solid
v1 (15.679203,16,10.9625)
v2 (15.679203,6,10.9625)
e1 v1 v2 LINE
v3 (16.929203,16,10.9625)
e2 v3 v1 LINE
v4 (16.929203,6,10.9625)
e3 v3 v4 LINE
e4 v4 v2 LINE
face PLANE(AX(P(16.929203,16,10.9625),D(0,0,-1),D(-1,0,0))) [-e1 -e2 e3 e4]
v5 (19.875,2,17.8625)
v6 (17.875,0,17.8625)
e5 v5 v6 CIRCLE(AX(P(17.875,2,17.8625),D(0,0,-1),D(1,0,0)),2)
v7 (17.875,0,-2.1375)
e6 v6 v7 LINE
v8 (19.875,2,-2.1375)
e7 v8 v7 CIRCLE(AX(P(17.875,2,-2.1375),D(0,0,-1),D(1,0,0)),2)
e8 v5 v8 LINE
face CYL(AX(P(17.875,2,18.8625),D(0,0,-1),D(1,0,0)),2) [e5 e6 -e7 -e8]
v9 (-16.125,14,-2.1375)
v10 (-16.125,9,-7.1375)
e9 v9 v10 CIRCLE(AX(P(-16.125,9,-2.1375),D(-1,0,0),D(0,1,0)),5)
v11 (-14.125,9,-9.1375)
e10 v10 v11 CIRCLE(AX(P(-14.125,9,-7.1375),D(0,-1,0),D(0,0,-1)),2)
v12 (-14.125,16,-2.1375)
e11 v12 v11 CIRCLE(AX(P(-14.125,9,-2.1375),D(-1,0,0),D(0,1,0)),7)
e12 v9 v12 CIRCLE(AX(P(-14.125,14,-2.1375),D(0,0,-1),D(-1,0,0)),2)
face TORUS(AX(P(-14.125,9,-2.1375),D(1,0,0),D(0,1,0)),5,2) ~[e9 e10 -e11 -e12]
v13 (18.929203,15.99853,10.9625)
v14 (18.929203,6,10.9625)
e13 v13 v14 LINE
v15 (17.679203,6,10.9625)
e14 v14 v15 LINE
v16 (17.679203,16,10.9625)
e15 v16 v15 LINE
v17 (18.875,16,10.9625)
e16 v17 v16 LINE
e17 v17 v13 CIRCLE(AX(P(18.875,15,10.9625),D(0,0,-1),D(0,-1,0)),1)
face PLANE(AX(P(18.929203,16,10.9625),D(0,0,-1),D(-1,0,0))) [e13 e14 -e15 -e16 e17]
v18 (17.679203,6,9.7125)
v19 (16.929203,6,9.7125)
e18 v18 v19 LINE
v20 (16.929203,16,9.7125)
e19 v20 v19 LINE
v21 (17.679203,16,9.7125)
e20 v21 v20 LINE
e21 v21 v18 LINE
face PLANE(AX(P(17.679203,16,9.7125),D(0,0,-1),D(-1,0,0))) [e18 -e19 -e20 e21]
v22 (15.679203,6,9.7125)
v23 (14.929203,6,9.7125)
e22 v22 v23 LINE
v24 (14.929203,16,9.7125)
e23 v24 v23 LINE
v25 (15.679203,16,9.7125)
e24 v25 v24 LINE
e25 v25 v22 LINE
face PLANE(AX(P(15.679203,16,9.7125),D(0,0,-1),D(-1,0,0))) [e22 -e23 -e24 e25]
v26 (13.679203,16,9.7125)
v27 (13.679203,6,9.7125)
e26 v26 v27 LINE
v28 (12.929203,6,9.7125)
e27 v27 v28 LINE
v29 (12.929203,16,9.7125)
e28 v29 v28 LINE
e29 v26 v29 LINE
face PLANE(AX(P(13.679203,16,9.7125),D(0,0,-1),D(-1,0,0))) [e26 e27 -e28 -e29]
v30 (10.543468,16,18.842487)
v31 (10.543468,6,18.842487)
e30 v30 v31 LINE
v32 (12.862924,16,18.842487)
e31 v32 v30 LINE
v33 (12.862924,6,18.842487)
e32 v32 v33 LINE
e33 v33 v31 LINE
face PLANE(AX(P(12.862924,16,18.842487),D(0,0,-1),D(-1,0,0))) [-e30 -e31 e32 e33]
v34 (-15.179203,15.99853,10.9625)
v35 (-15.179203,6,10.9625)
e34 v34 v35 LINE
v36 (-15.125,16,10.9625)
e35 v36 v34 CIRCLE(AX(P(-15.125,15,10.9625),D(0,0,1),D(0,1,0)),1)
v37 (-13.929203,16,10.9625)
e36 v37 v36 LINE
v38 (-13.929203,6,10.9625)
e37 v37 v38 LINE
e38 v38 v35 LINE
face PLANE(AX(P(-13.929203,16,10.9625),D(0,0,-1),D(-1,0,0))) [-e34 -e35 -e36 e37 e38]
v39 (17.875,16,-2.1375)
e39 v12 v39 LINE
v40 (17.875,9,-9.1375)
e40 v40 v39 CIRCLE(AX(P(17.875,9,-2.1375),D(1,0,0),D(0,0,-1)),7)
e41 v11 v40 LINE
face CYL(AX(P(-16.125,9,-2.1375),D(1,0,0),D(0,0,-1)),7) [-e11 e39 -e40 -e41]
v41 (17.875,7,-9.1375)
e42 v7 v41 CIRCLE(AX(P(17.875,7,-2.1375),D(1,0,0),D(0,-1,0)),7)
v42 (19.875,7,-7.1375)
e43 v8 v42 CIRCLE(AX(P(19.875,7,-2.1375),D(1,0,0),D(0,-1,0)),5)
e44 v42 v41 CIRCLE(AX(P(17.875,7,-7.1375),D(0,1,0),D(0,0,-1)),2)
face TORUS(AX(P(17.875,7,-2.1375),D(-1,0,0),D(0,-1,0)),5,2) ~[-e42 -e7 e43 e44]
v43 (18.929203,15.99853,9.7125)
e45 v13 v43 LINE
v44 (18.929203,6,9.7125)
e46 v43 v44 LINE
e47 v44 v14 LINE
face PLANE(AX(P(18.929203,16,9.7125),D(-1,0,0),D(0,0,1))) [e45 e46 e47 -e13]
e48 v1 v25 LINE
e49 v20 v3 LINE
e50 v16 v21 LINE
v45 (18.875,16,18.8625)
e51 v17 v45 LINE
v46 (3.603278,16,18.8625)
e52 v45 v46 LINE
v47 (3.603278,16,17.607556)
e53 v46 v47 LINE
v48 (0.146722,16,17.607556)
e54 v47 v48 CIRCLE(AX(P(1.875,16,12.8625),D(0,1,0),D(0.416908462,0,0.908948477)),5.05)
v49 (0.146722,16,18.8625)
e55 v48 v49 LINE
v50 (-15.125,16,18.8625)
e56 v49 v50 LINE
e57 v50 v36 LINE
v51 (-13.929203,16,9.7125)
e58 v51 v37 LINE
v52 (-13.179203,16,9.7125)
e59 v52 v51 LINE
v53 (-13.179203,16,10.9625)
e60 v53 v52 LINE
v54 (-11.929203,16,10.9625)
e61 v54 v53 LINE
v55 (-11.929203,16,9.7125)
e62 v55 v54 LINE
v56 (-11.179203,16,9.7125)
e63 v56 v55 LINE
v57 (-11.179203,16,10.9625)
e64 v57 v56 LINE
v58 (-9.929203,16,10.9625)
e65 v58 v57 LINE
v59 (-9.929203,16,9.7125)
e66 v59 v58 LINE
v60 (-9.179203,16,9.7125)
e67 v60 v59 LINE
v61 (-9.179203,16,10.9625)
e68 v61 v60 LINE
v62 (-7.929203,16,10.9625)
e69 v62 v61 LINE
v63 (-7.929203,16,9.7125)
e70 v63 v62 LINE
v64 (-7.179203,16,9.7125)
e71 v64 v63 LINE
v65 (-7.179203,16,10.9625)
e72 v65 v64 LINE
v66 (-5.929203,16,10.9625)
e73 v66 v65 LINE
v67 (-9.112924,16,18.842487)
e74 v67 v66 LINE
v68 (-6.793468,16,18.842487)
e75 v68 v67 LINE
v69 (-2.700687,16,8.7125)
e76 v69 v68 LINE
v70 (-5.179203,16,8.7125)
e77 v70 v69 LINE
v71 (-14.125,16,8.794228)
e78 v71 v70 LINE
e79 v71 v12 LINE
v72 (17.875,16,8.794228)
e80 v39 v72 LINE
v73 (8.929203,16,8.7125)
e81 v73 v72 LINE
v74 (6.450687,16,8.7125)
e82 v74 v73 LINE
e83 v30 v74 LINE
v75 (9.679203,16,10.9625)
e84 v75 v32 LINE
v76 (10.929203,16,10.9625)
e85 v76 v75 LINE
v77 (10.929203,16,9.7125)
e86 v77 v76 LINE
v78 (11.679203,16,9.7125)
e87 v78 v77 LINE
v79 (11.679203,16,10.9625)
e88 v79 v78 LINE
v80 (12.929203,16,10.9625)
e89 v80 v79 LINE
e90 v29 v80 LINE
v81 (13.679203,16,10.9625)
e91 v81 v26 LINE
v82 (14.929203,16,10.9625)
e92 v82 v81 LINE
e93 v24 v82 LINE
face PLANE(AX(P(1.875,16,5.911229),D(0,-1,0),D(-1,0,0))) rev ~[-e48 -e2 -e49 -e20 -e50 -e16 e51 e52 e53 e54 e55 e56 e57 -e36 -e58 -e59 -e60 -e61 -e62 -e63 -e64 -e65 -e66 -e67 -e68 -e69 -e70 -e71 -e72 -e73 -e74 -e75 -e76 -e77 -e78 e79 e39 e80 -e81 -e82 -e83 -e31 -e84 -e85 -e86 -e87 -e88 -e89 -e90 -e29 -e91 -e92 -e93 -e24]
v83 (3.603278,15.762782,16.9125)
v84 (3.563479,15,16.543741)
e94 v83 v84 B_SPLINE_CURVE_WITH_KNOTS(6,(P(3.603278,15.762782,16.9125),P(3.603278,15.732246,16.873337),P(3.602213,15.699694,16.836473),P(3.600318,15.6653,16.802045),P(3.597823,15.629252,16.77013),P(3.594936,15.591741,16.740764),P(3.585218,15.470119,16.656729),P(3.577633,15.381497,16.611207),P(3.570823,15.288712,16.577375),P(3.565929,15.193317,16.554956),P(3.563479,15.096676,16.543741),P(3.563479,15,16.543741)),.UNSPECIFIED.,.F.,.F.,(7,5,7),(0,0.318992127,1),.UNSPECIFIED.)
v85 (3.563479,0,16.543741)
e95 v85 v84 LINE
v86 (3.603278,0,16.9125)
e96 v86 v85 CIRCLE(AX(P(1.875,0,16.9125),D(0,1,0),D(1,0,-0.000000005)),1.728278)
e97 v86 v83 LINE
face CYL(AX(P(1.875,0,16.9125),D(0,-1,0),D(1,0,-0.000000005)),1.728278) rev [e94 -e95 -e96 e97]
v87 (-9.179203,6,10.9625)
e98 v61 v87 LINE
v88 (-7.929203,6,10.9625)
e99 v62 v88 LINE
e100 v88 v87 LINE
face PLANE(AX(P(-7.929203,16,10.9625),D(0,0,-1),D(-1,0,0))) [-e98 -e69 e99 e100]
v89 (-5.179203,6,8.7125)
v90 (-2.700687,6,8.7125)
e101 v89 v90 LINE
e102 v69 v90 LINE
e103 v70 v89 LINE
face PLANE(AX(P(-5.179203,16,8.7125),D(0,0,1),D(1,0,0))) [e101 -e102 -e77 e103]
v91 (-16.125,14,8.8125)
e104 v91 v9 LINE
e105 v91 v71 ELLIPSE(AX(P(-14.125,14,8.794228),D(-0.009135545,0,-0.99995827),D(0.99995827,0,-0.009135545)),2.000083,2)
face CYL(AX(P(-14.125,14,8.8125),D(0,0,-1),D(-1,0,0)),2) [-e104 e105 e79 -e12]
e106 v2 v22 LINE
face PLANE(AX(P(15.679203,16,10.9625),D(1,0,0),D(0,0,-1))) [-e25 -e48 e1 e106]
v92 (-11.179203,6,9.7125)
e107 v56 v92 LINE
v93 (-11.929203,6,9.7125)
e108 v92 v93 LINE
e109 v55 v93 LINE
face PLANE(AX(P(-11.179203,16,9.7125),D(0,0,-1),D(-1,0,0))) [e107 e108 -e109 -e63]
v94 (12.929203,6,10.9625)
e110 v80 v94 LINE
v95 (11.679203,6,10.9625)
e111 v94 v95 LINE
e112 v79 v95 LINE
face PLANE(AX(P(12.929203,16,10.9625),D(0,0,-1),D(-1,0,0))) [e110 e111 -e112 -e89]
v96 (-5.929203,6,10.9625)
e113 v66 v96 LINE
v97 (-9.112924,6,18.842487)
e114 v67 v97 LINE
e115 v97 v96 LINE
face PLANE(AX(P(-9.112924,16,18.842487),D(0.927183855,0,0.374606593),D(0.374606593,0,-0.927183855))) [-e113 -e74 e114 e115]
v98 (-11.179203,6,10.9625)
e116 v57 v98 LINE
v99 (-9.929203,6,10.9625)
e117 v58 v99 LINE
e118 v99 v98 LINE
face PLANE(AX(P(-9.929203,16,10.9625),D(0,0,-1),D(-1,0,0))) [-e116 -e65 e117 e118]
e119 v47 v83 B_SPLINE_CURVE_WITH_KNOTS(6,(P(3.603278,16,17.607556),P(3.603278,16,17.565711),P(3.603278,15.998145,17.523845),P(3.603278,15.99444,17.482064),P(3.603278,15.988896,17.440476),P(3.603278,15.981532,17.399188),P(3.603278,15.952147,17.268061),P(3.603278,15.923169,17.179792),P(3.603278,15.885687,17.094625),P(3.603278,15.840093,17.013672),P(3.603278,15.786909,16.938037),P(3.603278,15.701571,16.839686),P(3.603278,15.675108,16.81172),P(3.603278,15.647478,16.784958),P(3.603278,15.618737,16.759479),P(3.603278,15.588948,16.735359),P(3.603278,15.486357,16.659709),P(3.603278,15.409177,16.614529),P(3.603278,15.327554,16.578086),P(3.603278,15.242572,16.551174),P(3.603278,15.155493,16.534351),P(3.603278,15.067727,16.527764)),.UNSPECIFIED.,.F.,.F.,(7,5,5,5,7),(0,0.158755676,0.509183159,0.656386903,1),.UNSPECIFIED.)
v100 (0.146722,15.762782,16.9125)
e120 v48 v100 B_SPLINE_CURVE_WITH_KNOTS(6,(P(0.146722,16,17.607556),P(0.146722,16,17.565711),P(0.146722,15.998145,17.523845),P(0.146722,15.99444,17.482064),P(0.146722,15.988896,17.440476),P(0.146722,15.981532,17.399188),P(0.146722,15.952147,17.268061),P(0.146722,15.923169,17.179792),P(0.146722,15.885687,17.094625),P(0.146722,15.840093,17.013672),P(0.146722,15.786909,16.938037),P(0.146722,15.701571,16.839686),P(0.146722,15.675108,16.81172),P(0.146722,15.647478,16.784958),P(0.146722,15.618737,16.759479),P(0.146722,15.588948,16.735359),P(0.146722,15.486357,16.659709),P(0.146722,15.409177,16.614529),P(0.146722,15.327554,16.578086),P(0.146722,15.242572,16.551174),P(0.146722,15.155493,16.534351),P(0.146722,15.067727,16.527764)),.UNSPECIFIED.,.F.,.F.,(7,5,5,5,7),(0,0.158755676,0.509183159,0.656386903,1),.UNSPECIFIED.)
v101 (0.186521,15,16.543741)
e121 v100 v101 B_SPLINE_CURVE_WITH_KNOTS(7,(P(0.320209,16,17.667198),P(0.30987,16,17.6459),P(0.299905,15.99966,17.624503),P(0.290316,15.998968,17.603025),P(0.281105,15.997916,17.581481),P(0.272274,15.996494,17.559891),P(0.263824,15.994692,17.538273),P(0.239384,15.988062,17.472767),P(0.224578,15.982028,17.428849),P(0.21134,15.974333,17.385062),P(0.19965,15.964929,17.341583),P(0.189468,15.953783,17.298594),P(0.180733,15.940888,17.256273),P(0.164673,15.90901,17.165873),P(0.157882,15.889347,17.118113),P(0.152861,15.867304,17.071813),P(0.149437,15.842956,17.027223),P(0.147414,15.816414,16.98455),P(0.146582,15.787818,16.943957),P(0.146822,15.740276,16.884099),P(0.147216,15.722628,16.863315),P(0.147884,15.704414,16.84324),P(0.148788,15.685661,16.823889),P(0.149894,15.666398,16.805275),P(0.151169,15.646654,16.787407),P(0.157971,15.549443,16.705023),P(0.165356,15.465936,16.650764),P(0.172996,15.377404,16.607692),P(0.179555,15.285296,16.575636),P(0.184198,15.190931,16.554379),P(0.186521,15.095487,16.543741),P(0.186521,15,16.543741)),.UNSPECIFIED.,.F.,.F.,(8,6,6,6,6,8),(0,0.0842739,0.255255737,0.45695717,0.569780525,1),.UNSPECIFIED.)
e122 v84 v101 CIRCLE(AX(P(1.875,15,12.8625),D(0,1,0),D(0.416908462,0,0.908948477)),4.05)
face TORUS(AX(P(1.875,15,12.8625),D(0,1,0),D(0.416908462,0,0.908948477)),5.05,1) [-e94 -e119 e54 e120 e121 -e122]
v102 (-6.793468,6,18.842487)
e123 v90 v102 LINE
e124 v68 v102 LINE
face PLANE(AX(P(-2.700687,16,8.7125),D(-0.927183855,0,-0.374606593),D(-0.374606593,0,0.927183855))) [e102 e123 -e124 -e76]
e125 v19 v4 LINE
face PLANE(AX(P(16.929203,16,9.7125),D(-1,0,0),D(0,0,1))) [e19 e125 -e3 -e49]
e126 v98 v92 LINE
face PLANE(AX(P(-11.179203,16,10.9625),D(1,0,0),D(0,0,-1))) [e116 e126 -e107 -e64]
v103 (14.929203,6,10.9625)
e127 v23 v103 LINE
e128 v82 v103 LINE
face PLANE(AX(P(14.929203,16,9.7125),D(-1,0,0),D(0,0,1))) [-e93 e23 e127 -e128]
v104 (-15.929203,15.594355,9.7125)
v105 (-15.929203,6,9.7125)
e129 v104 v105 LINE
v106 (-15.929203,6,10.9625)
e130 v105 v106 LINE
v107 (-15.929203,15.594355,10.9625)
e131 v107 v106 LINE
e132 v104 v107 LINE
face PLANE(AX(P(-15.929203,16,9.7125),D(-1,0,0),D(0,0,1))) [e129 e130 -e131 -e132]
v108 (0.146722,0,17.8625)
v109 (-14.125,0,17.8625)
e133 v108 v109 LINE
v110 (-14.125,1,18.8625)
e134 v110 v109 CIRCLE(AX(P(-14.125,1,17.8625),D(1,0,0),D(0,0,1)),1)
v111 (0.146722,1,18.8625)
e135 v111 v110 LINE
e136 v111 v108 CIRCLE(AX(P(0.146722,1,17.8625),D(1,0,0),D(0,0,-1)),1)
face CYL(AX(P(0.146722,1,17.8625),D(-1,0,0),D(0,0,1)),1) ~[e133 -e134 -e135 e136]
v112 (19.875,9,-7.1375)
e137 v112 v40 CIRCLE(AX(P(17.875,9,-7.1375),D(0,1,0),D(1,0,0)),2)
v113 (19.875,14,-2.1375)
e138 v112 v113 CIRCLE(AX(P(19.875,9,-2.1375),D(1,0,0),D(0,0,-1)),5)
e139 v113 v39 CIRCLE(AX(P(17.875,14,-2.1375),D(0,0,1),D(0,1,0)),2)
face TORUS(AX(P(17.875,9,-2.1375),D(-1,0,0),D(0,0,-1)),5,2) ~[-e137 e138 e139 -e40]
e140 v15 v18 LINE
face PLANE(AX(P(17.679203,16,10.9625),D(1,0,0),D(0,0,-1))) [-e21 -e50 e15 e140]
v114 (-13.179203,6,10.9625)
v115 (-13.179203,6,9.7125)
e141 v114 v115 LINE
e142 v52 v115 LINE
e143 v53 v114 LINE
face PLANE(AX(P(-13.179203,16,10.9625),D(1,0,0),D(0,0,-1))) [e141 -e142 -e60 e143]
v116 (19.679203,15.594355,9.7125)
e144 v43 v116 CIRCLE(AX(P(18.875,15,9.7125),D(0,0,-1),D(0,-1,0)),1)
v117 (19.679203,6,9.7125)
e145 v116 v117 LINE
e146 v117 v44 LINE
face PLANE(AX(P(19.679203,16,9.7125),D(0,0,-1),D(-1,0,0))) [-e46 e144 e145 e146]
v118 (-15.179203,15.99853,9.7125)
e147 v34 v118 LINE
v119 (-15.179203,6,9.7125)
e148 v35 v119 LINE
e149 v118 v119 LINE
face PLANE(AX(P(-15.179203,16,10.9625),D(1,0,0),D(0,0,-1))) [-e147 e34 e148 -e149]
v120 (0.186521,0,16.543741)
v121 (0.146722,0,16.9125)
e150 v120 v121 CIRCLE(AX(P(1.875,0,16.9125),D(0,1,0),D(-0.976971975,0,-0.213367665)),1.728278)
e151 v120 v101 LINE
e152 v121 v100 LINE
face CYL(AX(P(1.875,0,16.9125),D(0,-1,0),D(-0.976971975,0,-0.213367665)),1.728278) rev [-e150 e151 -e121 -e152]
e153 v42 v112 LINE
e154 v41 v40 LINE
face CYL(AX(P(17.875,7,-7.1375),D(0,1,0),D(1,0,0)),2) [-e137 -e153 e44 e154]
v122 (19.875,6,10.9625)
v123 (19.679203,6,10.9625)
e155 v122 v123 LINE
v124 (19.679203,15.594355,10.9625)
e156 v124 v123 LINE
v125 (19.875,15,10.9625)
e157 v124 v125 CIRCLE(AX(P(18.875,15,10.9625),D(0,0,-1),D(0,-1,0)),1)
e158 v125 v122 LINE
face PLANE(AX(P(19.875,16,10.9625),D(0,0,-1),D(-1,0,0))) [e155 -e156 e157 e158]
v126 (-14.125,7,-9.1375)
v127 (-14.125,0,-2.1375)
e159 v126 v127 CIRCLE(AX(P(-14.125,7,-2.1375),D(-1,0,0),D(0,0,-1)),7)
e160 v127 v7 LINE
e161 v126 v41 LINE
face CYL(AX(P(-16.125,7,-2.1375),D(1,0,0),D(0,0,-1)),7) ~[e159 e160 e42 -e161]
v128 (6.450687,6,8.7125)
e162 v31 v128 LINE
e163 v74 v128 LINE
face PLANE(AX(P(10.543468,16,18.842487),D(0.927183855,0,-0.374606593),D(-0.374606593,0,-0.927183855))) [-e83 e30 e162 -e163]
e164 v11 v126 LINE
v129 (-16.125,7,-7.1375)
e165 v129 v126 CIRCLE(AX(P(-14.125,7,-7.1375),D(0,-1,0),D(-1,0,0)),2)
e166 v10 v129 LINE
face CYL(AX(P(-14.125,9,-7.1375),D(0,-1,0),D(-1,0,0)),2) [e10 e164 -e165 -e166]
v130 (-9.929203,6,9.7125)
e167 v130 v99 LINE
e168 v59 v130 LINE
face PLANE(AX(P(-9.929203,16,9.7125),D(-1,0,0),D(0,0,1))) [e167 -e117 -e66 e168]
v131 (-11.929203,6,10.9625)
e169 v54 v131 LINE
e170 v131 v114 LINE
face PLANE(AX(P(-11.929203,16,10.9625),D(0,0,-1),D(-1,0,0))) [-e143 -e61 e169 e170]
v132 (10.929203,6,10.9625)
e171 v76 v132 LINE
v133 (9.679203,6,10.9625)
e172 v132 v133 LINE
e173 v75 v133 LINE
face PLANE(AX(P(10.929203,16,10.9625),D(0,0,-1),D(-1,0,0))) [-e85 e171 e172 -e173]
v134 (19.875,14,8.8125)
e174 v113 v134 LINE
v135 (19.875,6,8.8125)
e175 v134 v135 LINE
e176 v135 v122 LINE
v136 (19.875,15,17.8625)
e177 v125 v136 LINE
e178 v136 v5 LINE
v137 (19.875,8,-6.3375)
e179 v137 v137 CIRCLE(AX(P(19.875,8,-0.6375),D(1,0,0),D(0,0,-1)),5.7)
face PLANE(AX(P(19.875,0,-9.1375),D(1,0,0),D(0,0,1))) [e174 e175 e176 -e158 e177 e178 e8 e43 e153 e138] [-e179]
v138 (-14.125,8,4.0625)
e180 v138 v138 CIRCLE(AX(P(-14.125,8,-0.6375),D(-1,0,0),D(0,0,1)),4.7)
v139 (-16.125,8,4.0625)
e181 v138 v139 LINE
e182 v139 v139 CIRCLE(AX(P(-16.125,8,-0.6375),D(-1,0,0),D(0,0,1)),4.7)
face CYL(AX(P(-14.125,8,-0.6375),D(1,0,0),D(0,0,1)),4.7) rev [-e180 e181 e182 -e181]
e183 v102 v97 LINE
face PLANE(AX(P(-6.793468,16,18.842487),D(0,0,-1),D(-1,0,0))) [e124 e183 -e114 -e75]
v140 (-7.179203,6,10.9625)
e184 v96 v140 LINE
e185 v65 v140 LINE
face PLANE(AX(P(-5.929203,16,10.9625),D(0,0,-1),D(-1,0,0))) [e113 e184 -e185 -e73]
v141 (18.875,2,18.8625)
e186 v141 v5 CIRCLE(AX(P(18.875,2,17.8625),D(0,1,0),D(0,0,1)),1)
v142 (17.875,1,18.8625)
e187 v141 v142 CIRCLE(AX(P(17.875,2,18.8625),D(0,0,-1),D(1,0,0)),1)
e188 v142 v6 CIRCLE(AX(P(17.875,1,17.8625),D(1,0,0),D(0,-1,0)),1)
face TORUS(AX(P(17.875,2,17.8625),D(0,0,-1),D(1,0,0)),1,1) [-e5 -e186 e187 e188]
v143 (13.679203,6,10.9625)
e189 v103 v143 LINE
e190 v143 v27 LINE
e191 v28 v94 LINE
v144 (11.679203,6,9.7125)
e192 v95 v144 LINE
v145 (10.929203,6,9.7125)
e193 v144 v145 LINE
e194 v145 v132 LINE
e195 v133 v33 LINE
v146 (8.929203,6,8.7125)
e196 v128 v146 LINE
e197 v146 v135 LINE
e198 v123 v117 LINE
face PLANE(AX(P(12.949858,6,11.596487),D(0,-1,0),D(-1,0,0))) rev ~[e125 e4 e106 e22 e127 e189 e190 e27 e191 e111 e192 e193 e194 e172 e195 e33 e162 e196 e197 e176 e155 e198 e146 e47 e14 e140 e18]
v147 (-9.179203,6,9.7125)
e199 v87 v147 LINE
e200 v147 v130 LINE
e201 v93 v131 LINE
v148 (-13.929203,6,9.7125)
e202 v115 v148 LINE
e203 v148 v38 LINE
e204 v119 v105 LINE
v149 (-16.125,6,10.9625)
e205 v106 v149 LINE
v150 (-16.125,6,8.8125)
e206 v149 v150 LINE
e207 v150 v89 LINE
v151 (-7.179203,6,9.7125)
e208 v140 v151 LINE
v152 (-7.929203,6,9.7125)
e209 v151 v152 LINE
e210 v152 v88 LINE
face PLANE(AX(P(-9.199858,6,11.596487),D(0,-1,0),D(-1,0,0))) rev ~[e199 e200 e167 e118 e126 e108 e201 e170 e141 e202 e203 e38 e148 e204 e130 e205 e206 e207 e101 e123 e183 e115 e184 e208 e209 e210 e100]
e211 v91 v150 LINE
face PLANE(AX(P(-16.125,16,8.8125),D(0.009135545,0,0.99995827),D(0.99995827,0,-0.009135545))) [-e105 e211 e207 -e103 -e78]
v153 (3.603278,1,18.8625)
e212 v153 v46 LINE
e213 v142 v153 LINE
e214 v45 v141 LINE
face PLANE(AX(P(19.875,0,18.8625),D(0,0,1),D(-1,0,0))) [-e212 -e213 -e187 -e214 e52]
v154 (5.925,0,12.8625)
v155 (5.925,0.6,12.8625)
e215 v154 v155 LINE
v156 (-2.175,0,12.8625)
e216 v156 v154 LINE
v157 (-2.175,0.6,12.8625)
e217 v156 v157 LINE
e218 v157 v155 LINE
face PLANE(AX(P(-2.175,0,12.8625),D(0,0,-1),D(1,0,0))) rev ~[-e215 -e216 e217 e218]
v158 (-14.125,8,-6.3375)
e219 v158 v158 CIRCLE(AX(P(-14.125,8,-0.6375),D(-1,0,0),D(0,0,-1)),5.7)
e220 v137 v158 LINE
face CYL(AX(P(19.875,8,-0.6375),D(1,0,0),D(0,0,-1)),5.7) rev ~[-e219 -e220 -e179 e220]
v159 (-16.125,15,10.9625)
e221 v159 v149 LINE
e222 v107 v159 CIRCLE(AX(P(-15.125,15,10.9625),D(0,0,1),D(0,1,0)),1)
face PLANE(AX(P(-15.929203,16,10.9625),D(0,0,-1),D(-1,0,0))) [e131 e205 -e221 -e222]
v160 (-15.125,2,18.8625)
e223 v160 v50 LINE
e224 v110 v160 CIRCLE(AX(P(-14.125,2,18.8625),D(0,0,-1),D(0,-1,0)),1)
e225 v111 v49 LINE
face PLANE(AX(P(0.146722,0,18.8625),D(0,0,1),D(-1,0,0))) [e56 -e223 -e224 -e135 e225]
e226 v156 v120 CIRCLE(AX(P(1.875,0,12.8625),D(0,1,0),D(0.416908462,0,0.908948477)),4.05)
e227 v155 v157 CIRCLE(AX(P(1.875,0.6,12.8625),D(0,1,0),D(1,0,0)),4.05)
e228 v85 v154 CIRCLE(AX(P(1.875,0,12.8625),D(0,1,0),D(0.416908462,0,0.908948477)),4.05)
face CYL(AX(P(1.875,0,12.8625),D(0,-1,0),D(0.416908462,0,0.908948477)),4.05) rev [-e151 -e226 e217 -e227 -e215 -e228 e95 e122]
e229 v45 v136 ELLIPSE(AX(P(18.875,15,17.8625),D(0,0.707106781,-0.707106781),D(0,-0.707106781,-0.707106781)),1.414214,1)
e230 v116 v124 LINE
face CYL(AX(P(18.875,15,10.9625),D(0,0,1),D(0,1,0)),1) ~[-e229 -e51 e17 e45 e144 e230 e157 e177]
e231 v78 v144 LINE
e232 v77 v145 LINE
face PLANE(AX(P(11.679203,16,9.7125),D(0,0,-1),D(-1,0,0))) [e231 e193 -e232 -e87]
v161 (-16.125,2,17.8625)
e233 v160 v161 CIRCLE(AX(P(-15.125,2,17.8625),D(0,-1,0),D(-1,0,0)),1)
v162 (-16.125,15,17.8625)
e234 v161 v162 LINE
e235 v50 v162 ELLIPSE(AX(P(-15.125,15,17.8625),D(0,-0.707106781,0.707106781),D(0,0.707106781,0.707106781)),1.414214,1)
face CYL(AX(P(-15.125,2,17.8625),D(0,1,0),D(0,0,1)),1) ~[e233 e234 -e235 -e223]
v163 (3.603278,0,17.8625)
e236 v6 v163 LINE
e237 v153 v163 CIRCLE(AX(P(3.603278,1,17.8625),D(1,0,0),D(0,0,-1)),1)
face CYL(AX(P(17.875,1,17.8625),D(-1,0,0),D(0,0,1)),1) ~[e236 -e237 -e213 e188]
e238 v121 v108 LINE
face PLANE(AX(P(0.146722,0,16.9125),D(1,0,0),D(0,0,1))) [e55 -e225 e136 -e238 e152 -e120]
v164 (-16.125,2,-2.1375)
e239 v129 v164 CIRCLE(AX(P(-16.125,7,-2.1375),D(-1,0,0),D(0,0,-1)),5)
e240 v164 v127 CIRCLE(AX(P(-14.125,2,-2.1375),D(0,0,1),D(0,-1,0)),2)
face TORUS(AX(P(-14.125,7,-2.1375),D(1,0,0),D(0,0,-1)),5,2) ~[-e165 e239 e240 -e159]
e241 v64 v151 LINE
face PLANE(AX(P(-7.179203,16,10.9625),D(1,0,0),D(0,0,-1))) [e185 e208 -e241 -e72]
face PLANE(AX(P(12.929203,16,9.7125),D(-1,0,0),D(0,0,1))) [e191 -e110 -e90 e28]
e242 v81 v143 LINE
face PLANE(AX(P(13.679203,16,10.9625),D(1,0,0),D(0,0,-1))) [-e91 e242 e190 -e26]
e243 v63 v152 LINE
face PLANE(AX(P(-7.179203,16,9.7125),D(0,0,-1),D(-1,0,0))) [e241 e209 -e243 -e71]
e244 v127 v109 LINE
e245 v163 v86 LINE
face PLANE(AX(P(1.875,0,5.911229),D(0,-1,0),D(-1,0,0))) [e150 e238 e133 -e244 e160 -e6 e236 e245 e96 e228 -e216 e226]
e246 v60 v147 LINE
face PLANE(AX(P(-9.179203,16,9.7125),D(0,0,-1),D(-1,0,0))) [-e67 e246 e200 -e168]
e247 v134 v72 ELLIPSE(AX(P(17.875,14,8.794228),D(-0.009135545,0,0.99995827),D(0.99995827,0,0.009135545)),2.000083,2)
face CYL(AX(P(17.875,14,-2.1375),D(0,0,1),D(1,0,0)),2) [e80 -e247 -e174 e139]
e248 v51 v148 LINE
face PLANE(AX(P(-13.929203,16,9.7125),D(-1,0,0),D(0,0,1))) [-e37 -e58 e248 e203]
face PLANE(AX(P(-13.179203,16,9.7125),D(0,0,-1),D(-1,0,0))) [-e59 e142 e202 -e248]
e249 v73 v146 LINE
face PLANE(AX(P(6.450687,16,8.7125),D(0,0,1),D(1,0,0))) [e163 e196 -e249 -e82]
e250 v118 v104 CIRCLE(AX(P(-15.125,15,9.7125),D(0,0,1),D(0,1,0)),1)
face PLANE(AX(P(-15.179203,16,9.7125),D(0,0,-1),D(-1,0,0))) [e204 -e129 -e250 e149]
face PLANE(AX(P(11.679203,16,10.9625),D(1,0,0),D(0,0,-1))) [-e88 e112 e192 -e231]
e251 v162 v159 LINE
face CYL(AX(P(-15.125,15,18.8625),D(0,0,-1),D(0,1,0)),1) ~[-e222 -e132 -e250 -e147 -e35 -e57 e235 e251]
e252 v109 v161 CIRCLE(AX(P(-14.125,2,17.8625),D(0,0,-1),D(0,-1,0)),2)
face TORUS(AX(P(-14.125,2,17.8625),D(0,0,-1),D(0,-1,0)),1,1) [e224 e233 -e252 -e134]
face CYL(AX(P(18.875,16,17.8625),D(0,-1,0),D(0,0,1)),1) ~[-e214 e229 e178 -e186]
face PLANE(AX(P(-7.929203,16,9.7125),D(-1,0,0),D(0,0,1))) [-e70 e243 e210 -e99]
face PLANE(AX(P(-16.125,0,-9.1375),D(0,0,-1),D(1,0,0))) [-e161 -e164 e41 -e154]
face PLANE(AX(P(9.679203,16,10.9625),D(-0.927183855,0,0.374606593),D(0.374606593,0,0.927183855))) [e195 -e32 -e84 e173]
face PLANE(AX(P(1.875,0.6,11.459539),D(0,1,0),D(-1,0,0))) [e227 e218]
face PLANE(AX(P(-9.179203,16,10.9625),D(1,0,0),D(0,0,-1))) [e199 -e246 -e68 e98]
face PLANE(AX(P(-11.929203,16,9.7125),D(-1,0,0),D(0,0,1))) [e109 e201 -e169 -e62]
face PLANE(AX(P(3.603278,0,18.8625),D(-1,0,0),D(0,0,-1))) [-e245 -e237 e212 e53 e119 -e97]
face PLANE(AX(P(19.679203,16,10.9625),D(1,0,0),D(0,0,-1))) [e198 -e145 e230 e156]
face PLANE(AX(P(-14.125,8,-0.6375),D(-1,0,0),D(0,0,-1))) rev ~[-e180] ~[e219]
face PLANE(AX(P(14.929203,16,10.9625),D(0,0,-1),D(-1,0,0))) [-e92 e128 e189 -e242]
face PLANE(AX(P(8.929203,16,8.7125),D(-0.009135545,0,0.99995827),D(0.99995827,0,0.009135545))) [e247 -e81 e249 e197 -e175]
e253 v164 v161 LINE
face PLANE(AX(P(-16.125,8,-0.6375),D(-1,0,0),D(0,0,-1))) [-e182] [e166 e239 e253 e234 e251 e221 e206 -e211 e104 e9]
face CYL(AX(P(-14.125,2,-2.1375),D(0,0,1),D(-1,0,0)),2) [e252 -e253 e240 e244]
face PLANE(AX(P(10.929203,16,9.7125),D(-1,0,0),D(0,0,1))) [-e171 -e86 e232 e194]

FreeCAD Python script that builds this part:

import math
import FreeCAD as App
import Part
import Sketcher
from FreeCAD import Vector
Q = App.Units.Quantity


def edges_at(feature, points):
    """Names of the edges that pass closest to the given points."""
    edges = feature.Shape.Edges
    near = lambda p: min(range(len(edges)), key=lambda i: edges[i].distToShape(Part.Vertex(*p))[0])
    return sorted({f"Edge{near(p) + 1}" for p in points})

doc = App.newDocument("Part")
body = doc.addObject("PartDesign::Body", "Body")

# Sketch on XZ plane
sketch1 = doc.addObject("Sketcher::SketchObject", "Sketch")
body.addObject(sketch1)
sketch1.AttachmentSupport = (doc.XZ_Plane, [""])
sketch1.MapMode = "FlatFace"
sketch1.addGeometry(Part.LineSegment(Vector(19.88, -9.14, 0), Vector(-16.12, -9.14, 0)), False)
sketch1.addGeometry(Part.LineSegment(Vector(-16.12, -9.14, 0), Vector(-16.12, 18.86, 0)), False)
sketch1.addGeometry(Part.LineSegment(Vector(-16.12, 18.86, 0), Vector(0.15, 18.86, 0)), False)
sketch1.addGeometry(Part.LineSegment(Vector(0.15, 18.86, 0), Vector(0.15, 16.91, 0)), False)
sketch1.addGeometry(Part.ArcOfCircle(Part.Circle(Vector(1.88, 16.91, 0), Vector(0, 0, 1), 1.73), math.radians(-180), math.radians(-167.68)), False)
sketch1.addGeometry(Part.ArcOfCircle(Part.Circle(Vector(1.88, 12.86, 0), Vector(0, 0, 1), 4.05), math.radians(115), math.radians(425)), False)
sketch1.addGeometry(Part.ArcOfCircle(Part.Circle(Vector(1.87, 16.91, 0), Vector(0, 0, 1), 1.73), math.radians(-12.32), math.radians(0)), False)
sketch1.addGeometry(Part.LineSegment(Vector(3.6, 16.91, 0), Vector(3.6, 18.86, 0)), False)
sketch1.addGeometry(Part.LineSegment(Vector(3.6, 18.86, 0), Vector(19.88, 18.86, 0)), False)
sketch1.addGeometry(Part.LineSegment(Vector(19.88, 18.86, 0), Vector(19.88, -9.14, 0)), False)
sketch1.addConstraint(Sketcher.Constraint("Coincident", 0, 2, 1, 1))
sketch1.addConstraint(Sketcher.Constraint("Coincident", 1, 2, 2, 1))
sketch1.addConstraint(Sketcher.Constraint("Coincident", 2, 2, 3, 1))
sketch1.addConstraint(Sketcher.Constraint("Tangent", 3, 2, 4, 1))
sketch1.addConstraint(Sketcher.Constraint("Coincident", 4, 2, 5, 1))
sketch1.addConstraint(Sketcher.Constraint("Coincident", 5, 2, 6, 1))
sketch1.addConstraint(Sketcher.Constraint("Tangent", 6, 2, 7, 1))
sketch1.addConstraint(Sketcher.Constraint("Coincident", 7, 2, 8, 1))
sketch1.addConstraint(Sketcher.Constraint("Coincident", 8, 2, 9, 1))
sketch1.addConstraint(Sketcher.Constraint("Coincident", 9, 2, 0, 1))
sketch1.addConstraint(Sketcher.Constraint("Horizontal", 0))
sketch1.addConstraint(Sketcher.Constraint("Vertical", 1))
sketch1.addConstraint(Sketcher.Constraint("Horizontal", 2))
sketch1.addConstraint(Sketcher.Constraint("Vertical", 3))
sketch1.addConstraint(Sketcher.Constraint("Vertical", 7))
sketch1.addConstraint(Sketcher.Constraint("Horizontal", 8))
sketch1.addConstraint(Sketcher.Constraint("Vertical", 9))
sketch1.addConstraint(Sketcher.Constraint("Coincident", 6, 3, 4, 3))
sketch1.addConstraint(Sketcher.Constraint("Equal", 4, 6))
sketch1.addConstraint(Sketcher.Constraint("Horizontal", 4, 2, 5, 2))
sketch1.addConstraint(Sketcher.Constraint("Horizontal", 2, 2, 7, 2))
sketch1.addConstraint(Sketcher.Constraint("Equal", 2, 8))
sketch1.addConstraint(Sketcher.Constraint("DistanceX", 0, 2, 0, 1, 36.0))
sketch1.addConstraint(Sketcher.Constraint("DistanceY", 1, 1, 1, 2, 28.0))
sketch1.addConstraint(Sketcher.Constraint("Radius", 5, 4.05))
sketch1.addConstraint(Sketcher.Constraint("DistanceY", 0, 2, 5, 3, 22.0))
sketch1.addConstraint(Sketcher.Constraint("DistanceY", 3, 2, 3, 1, 1.95))
sketch1.addConstraint(Sketcher.Constraint("Radius", 4, 1.728278))
sketch1.addConstraint(Sketcher.Constraint("DistanceX", -1, 1, 4, 3, 1.875))
sketch1.addConstraint(Sketcher.Constraint("DistanceY", -1, 1, 4, 3, 16.9125))
pad1 = doc.addObject("PartDesign::Pad", "Pad")
body.addObject(pad1)
pad1.Profile = sketch1
pad1.Length = 16
pad1.Reversed = True

# Sketch on YZ plane
sketch2 = doc.addObject("Sketcher::SketchObject", "Sketch001")
body.addObject(sketch2)
sketch2.AttachmentSupport = (doc.YZ_Plane, [""])
sketch2.MapMode = "FlatFace"
sketch2.AttachmentOffset = App.Placement(Vector(0, 0, 19.875), App.Rotation())
sketch2.addGeometry(Part.Circle(Vector(8, -1, 0), Vector(0, 0, 1), 6), False)
sketch2.addConstraint(Sketcher.Constraint("Diameter", 0, 11.4))
sketch2.addConstraint(Sketcher.Constraint("DistanceX", -1, 1, 0, 3, 8.0))
sketch2.addConstraint(Sketcher.Constraint("DistanceY", 0, 3, -1, 1, 0.6375))
pocket1 = doc.addObject("PartDesign::Pocket", "Pocket")
body.addObject(pocket1)
pocket1.Profile = sketch2
pocket1.Length = 38

# Sketch on XZ plane
sketch3 = doc.addObject("Sketcher::SketchObject", "Sketch002")
body.addObject(sketch3)
sketch3.AttachmentSupport = (doc.XZ_Plane, [""])
sketch3.MapMode = "FlatFace"
sketch3.addGeometry(Part.LineSegment(Vector(5.9, 12.9, 0), Vector(-2.2, 12.9, 0)), False)
sketch3.addGeometry(Part.ArcOfCircle(Part.Circle(Vector(1.9, 12.9, 0), Vector(0, 0, 1), 4), math.radians(180), math.radians(360)), False)
sketch3.addConstraint(Sketcher.Constraint("Coincident", 0, 1, 1, 2))
sketch3.addConstraint(Sketcher.Constraint("Coincident", 1, 1, 0, 2))
sketch3.addConstraint(Sketcher.Constraint("Horizontal", 0))
sketch3.addConstraint(Sketcher.Constraint("Horizontal", 1, 3, 0, 1))
sketch3.addConstraint(Sketcher.Constraint("Radius", 1, 4.05))
sketch3.addConstraint(Sketcher.Constraint("DistanceX", -1, 1, 1, 3, 1.875))
sketch3.addConstraint(Sketcher.Constraint("DistanceY", -1, 1, 1, 3, 12.8625))
pad2 = doc.addObject("PartDesign::Pad", "Pad001")
body.addObject(pad2)
pad2.Profile = sketch3
pad2.Length = 0.6
pad2.Reversed = True

# Sketch on XZ plane
sketch4 = doc.addObject("Sketcher::SketchObject", "Sketch003")
body.addObject(sketch4)
sketch4.AttachmentSupport = (doc.XZ_Plane, [""])
sketch4.MapMode = "FlatFace"
sketch4.AttachmentOffset = App.Placement(Vector(0, 0, -16), App.Rotation())
sketch4.addGeometry(Part.LineSegment(Vector(-15.93, 10.96, 0), Vector(-15.93, 9.71, 0)), False)
sketch4.addGeometry(Part.LineSegment(Vector(-15.93, 9.71, 0), Vector(-15.18, 9.71, 0)), False)
sketch4.addGeometry(Part.LineSegment(Vector(-15.18, 9.71, 0), Vector(-15.18, 10.96, 0)), False)
sketch4.addGeometry(Part.LineSegment(Vector(-15.18, 10.96, 0), Vector(-13.93, 10.96, 0)), False)
sketch4.addGeometry(Part.LineSegment(Vector(-13.93, 10.96, 0), Vector(-13.93, 9.71, 0)), False)
sketch4.addGeometry(Part.LineSegment(Vector(-13.93, 9.71, 0), Vector(-13.18, 9.71, 0)), False)
sketch4.addGeometry(Part.LineSegment(Vector(-13.18, 9.71, 0), Vector(-13.18, 10.96, 0)), False)
sketch4.addGeometry(Part.LineSegment(Vector(-13.18, 10.96, 0), Vector(-11.93, 10.96, 0)), False)
sketch4.addGeometry(Part.LineSegment(Vector(-11.93, 10.96, 0), Vector(-11.93, 9.71, 0)), False)
sketch4.addGeometry(Part.LineSegment(Vector(-11.93, 9.71, 0), Vector(-11.18, 9.71, 0)), False)
sketch4.addGeometry(Part.LineSegment(Vector(-11.18, 9.71, 0), Vector(-11.18, 10.96, 0)), False)
sketch4.addGeometry(Part.LineSegment(Vector(-11.18, 10.96, 0), Vector(-9.93, 10.96, 0)), False)
sketch4.addGeometry(Part.LineSegment(Vector(-9.93, 10.96, 0), Vector(-9.93, 9.71, 0)), False)
sketch4.addGeometry(Part.LineSegment(Vector(-9.93, 9.71, 0), Vector(-9.18, 9.71, 0)), False)
sketch4.addGeometry(Part.LineSegment(Vector(-9.18, 9.71, 0), Vector(-9.18, 10.96, 0)), False)
sketch4.addGeometry(Part.LineSegment(Vector(-9.18, 10.96, 0), Vector(-7.93, 10.96, 0)), False)
sketch4.addGeometry(Part.LineSegment(Vector(-7.93, 10.96, 0), Vector(-7.93, 9.71, 0)), False)
sketch4.addGeometry(Part.LineSegment(Vector(-7.93, 9.71, 0), Vector(-7.18, 9.71, 0)), False)
sketch4.addGeometry(Part.LineSegment(Vector(-7.18, 9.71, 0), Vector(-7.18, 10.96, 0)), False)
sketch4.addGeometry(Part.LineSegment(Vector(-7.18, 10.96, 0), Vector(-5.93, 10.96, 0)), False)
sketch4.addGeometry(Part.LineSegment(Vector(-5.93, 10.96, 0), Vector(-9.11, 18.84, 0)), False)
sketch4.addGeometry(Part.LineSegment(Vector(-9.11, 18.84, 0), Vector(-6.79, 18.84, 0)), False)
sketch4.addGeometry(Part.LineSegment(Vector(-6.79, 18.84, 0), Vector(-2.7, 8.71, 0)), False)
sketch4.addGeometry(Part.LineSegment(Vector(-2.7, 8.71, 0), Vector(-5.18, 8.71, 0)), False)
sketch4.addGeometry(Part.LineSegment(Vector(-5.18, 8.71, 0), Vector(-16.12, 8.81, 0)), False)
sketch4.addGeometry(Part.LineSegment(Vector(-16.12, 8.81, 0), Vector(-16.12, 10.96, 0)), False)
sketch4.addGeometry(Part.LineSegment(Vector(-16.12, 10.96, 0), Vector(-15.93, 10.96, 0)), False)
sketch4.addGeometry(Part.LineSegment(Vector(10.54, 18.84, 0), Vector(12.86, 18.84, 0)), False)
sketch4.addGeometry(Part.LineSegment(Vector(12.86, 18.84, 0), Vector(9.68, 10.96, 0)), False)
sketch4.addGeometry(Part.LineSegment(Vector(9.68, 10.96, 0), Vector(10.93, 10.96, 0)), False)
sketch4.addGeometry(Part.LineSegment(Vector(10.93, 10.96, 0), Vector(10.93, 9.71, 0)), False)
sketch4.addGeometry(Part.LineSegment(Vector(10.93, 9.71, 0), Vector(11.68, 9.71, 0)), False)
sketch4.addGeometry(Part.LineSegment(Vector(11.68, 9.71, 0), Vector(11.68, 10.96, 0)), False)
sketch4.addGeometry(Part.LineSegment(Vector(11.68, 10.96, 0), Vector(12.93, 10.96, 0)), False)
sketch4.addGeometry(Part.LineSegment(Vector(12.93, 10.96, 0), Vector(12.93, 9.71, 0)), False)
sketch4.addGeometry(Part.LineSegment(Vector(12.93, 9.71, 0), Vector(13.68, 9.71, 0)), False)
sketch4.addGeometry(Part.LineSegment(Vector(13.68, 9.71, 0), Vector(13.68, 10.96, 0)), False)
sketch4.addGeometry(Part.LineSegment(Vector(13.68, 10.96, 0), Vector(14.93, 10.96, 0)), False)
sketch4.addGeometry(Part.LineSegment(Vector(14.93, 10.96, 0), Vector(14.93, 9.71, 0)), False)
sketch4.addGeometry(Part.LineSegment(Vector(14.93, 9.71, 0), Vector(15.68, 9.71, 0)), False)
sketch4.addGeometry(Part.LineSegment(Vector(15.68, 9.71, 0), Vector(15.68, 10.96, 0)), False)
sketch4.addGeometry(Part.LineSegment(Vector(15.68, 10.96, 0), Vector(16.93, 10.96, 0)), False)
sketch4.addGeometry(Part.LineSegment(Vector(16.93, 10.96, 0), Vector(16.93, 9.71, 0)), False)
sketch4.addGeometry(Part.LineSegment(Vector(16.93, 9.71, 0), Vector(17.68, 9.71, 0)), False)
sketch4.addGeometry(Part.LineSegment(Vector(17.68, 9.71, 0), Vector(17.68, 10.96, 0)), False)
sketch4.addGeometry(Part.LineSegment(Vector(17.68, 10.96, 0), Vector(18.93, 10.96, 0)), False)
sketch4.addGeometry(Part.LineSegment(Vector(18.93, 10.96, 0), Vector(18.93, 9.71, 0)), False)
sketch4.addGeometry(Part.LineSegment(Vector(18.93, 9.71, 0), Vector(19.68, 9.71, 0)), False)
sketch4.addGeometry(Part.LineSegment(Vector(19.68, 9.71, 0), Vector(19.68, 10.96, 0)), False)
sketch4.addGeometry(Part.LineSegment(Vector(19.68, 10.96, 0), Vector(19.88, 10.96, 0)), False)
sketch4.addGeometry(Part.LineSegment(Vector(19.88, 10.96, 0), Vector(19.88, 8.81, 0)), False)
sketch4.addGeometry(Part.LineSegment(Vector(19.88, 8.81, 0), Vector(8.93, 8.71, 0)), False)
sketch4.addGeometry(Part.LineSegment(Vector(8.93, 8.71, 0), Vector(6.45, 8.71, 0)), False)
sketch4.addGeometry(Part.LineSegment(Vector(6.45, 8.71, 0), Vector(10.54, 18.84, 0)), False)
sketch4.addConstraint(Sketcher.Constraint("Coincident", 0, 2, 1, 1))
sketch4.addConstraint(Sketcher.Constraint("Coincident", 1, 2, 2, 1))
sketch4.addConstraint(Sketcher.Constraint("Coincident", 2, 2, 3, 1))
sketch4.addConstraint(Sketcher.Constraint("Coincident", 3, 2, 4, 1))
sketch4.addConstraint(Sketcher.Constraint("Coincident", 4, 2, 5, 1))
sketch4.addConstraint(Sketcher.Constraint("Coincident", 5, 2, 6, 1))
sketch4.addConstraint(Sketcher.Constraint("Coincident", 6, 2, 7, 1))
sketch4.addConstraint(Sketcher.Constraint("Coincident", 7, 2, 8, 1))
sketch4.addConstraint(Sketcher.Constraint("Coincident", 8, 2, 9, 1))
sketch4.addConstraint(Sketcher.Constraint("Coincident", 9, 2, 10, 1))
sketch4.addConstraint(Sketcher.Constraint("Coincident", 10, 2, 11, 1))
sketch4.addConstraint(Sketcher.Constraint("Coincident", 11, 2, 12, 1))
sketch4.addConstraint(Sketcher.Constraint("Coincident", 12, 2, 13, 1))
sketch4.addConstraint(Sketcher.Constraint("Coincident", 13, 2, 14, 1))
sketch4.addConstraint(Sketcher.Constraint("Coincident", 14, 2, 15, 1))
sketch4.addConstraint(Sketcher.Constraint("Coincident", 15, 2, 16, 1))
sketch4.addConstraint(Sketcher.Constraint("Coincident", 16, 2, 17, 1))
sketch4.addConstraint(Sketcher.Constraint("Coincident", 17, 2, 18, 1))
sketch4.addConstraint(Sketcher.Constraint("Coincident", 18, 2, 19, 1))
sketch4.addConstraint(Sketcher.Constraint("Coincident", 19, 2, 20, 1))
sketch4.addConstraint(Sketcher.Constraint("Coincident", 20, 2, 21, 1))
sketch4.addConstraint(Sketcher.Constraint("Coincident", 21, 2, 22, 1))
sketch4.addConstraint(Sketcher.Constraint("Coincident", 22, 2, 23, 1))
sketch4.addConstraint(Sketcher.Constraint("Coincident", 23, 2, 24, 1))
sketch4.addConstraint(Sketcher.Constraint("Coincident", 24, 2, 25, 1))
sketch4.addConstraint(Sketcher.Constraint("Coincident", 25, 2, 26, 1))
sketch4.addConstraint(Sketcher.Constraint("Coincident", 26, 2, 0, 1))
sketch4.addConstraint(Sketcher.Constraint("Coincident", 27, 2, 28, 1))
sketch4.addConstraint(Sketcher.Constraint("Coincident", 28, 2, 29, 1))
sketch4.addConstraint(Sketcher.Constraint("Coincident", 29, 2, 30, 1))
sketch4.addConstraint(Sketcher.Constraint("Coincident", 30, 2, 31, 1))
sketch4.addConstraint(Sketcher.Constraint("Coincident", 31, 2, 32, 1))
sketch4.addConstraint(Sketcher.Constraint("Coincident", 32, 2, 33, 1))
sketch4.addConstraint(Sketcher.Constraint("Coincident", 33, 2, 34, 1))
sketch4.addConstraint(Sketcher.Constraint("Coincident", 34, 2, 35, 1))
sketch4.addConstraint(Sketcher.Constraint("Coincident", 35, 2, 36, 1))
sketch4.addConstraint(Sketcher.Constraint("Coincident", 36, 2, 37, 1))
sketch4.addConstraint(Sketcher.Constraint("Coincident", 37, 2, 38, 1))
sketch4.addConstraint(Sketcher.Constraint("Coincident", 38, 2, 39, 1))
sketch4.addConstraint(Sketcher.Constraint("Coincident", 39, 2, 40, 1))
sketch4.addConstraint(Sketcher.Constraint("Coincident", 40, 2, 41, 1))
sketch4.addConstraint(Sketcher.Constraint("Coincident", 41, 2, 42, 1))
sketch4.addConstraint(Sketcher.Constraint("Coincident", 42, 2, 43, 1))
sketch4.addConstraint(Sketcher.Constraint("Coincident", 43, 2, 44, 1))
sketch4.addConstraint(Sketcher.Constraint("Coincident", 44, 2, 45, 1))
sketch4.addConstraint(Sketcher.Constraint("Coincident", 45, 2, 46, 1))
sketch4.addConstraint(Sketcher.Constraint("Coincident", 46, 2, 47, 1))
sketch4.addConstraint(Sketcher.Constraint("Coincident", 47, 2, 48, 1))
sketch4.addConstraint(Sketcher.Constraint("Coincident", 48, 2, 49, 1))
sketch4.addConstraint(Sketcher.Constraint("Coincident", 49, 2, 50, 1))
sketch4.addConstraint(Sketcher.Constraint("Coincident", 50, 2, 51, 1))
sketch4.addConstraint(Sketcher.Constraint("Coincident", 51, 2, 52, 1))
sketch4.addConstraint(Sketcher.Constraint("Coincident", 52, 2, 53, 1))
sketch4.addConstraint(Sketcher.Constraint("Coincident", 53, 2, 27, 1))
sketch4.addConstraint(Sketcher.Constraint("Vertical", 0))
sketch4.addConstraint(Sketcher.Constraint("Horizontal", 1))
sketch4.addConstraint(Sketcher.Constraint("Vertical", 2))
sketch4.addConstraint(Sketcher.Constraint("Horizontal", 3))
sketch4.addConstraint(Sketcher.Constraint("Vertical", 4))
sketch4.addConstraint(Sketcher.Constraint("Horizontal", 5))
sketch4.addConstraint(Sketcher.Constraint("Vertical", 6))
sketch4.addConstraint(Sketcher.Constraint("Horizontal", 7))
sketch4.addConstraint(Sketcher.Constraint("Vertical", 8))
sketch4.addConstraint(Sketcher.Constraint("Horizontal", 9))
sketch4.addConstraint(Sketcher.Constraint("Vertical", 10))
sketch4.addConstraint(Sketcher.Constraint("Horizontal", 11))
sketch4.addConstraint(Sketcher.Constraint("Vertical", 12))
sketch4.addConstraint(Sketcher.Constraint("Horizontal", 13))
sketch4.addConstraint(Sketcher.Constraint("Vertical", 14))
sketch4.addConstraint(Sketcher.Constraint("Horizontal", 15))
sketch4.addConstraint(Sketcher.Constraint("Vertical", 16))
sketch4.addConstraint(Sketcher.Constraint("Horizontal", 17))
sketch4.addConstraint(Sketcher.Constraint("Vertical", 18))
sketch4.addConstraint(Sketcher.Constraint("Horizontal", 19))
sketch4.addConstraint(Sketcher.Constraint("Horizontal", 21))
sketch4.addConstraint(Sketcher.Constraint("Horizontal", 23))
sketch4.addConstraint(Sketcher.Constraint("Vertical", 25))
sketch4.addConstraint(Sketcher.Constraint("Horizontal", 26))
sketch4.addConstraint(Sketcher.Constraint("Horizontal", 27))
sketch4.addConstraint(Sketcher.Constraint("Horizontal", 29))
sketch4.addConstraint(Sketcher.Constraint("Vertical", 30))
sketch4.addConstraint(Sketcher.Constraint("Horizontal", 31))
sketch4.addConstraint(Sketcher.Constraint("Vertical", 32))
sketch4.addConstraint(Sketcher.Constraint("Horizontal", 33))
sketch4.addConstraint(Sketcher.Constraint("Vertical", 34))
sketch4.addConstraint(Sketcher.Constraint("Horizontal", 35))
sketch4.addConstraint(Sketcher.Constraint("Vertical", 36))
sketch4.addConstraint(Sketcher.Constraint("Horizontal", 37))
sketch4.addConstraint(Sketcher.Constraint("Vertical", 38))
sketch4.addConstraint(Sketcher.Constraint("Horizontal", 39))
sketch4.addConstraint(Sketcher.Constraint("Vertical", 40))
sketch4.addConstraint(Sketcher.Constraint("Horizontal", 41))
sketch4.addConstraint(Sketcher.Constraint("Vertical", 42))
sketch4.addConstraint(Sketcher.Constraint("Horizontal", 43))
sketch4.addConstraint(Sketcher.Constraint("Vertical", 44))
sketch4.addConstraint(Sketcher.Constraint("Horizontal", 45))
sketch4.addConstraint(Sketcher.Constraint("Vertical", 46))
sketch4.addConstraint(Sketcher.Constraint("Horizontal", 47))
sketch4.addConstraint(Sketcher.Constraint("Vertical", 48))
sketch4.addConstraint(Sketcher.Constraint("Horizontal", 49))
sketch4.addConstraint(Sketcher.Constraint("Vertical", 50))
sketch4.addConstraint(Sketcher.Constraint("Horizontal", 52))
sketch4.addConstraint(Sketcher.Constraint("Parallel", 20, 22))
sketch4.addConstraint(Sketcher.Constraint("Parallel", 28, 53))
sketch4.addConstraint(Sketcher.Constraint("Horizontal", 1, 2, 4, 2))
sketch4.addConstraint(Sketcher.Constraint("Horizontal", 3, 2, 6, 2))
sketch4.addConstraint(Sketcher.Constraint("Horizontal", 5, 2, 8, 2))
sketch4.addConstraint(Sketcher.Constraint("Horizontal", 7, 2, 10, 2))
sketch4.addConstraint(Sketcher.Constraint("Horizontal", 9, 2, 12, 2))
sketch4.addConstraint(Sketcher.Constraint("Horizontal", 11, 2, 14, 2))
sketch4.addConstraint(Sketcher.Constraint("Horizontal", 13, 2, 16, 2))
sketch4.addConstraint(Sketcher.Constraint("Horizontal", 15, 2, 18, 2))
sketch4.addConstraint(Sketcher.Constraint("Horizontal", 19, 2, 25, 2))
sketch4.addConstraint(Sketcher.Constraint("Horizontal", 21, 2, 27, 2))
sketch4.addConstraint(Sketcher.Constraint("Horizontal", 26, 2, 28, 2))
sketch4.addConstraint(Sketcher.Constraint("Horizontal", 17, 2, 30, 2))
sketch4.addConstraint(Sketcher.Constraint("Horizontal", 29, 2, 32, 2))
sketch4.addConstraint(Sketcher.Constraint("Horizontal", 31, 2, 34, 2))
sketch4.addConstraint(Sketcher.Constraint("Horizontal", 33, 2, 36, 2))
sketch4.addConstraint(Sketcher.Constraint("Horizontal", 35, 2, 38, 2))
sketch4.addConstraint(Sketcher.Constraint("Horizontal", 37, 2, 40, 2))
sketch4.addConstraint(Sketcher.Constraint("Horizontal", 39, 2, 42, 2))
sketch4.addConstraint(Sketcher.Constraint("Horizontal", 41, 2, 44, 2))
sketch4.addConstraint(Sketcher.Constraint("Horizontal", 43, 2, 46, 2))
sketch4.addConstraint(Sketcher.Constraint("Horizontal", 45, 2, 48, 2))
sketch4.addConstraint(Sketcher.Constraint("Horizontal", 24, 2, 50, 2))
sketch4.addConstraint(Sketcher.Constraint("Horizontal", 23, 2, 51, 2))
sketch4.addConstraint(Sketcher.Constraint("Equal", 1, 5))
sketch4.addConstraint(Sketcher.Constraint("Equal", 3, 7))
sketch4.addConstraint(Sketcher.Constraint("Equal", 5, 9))
sketch4.addConstraint(Sketcher.Constraint("Equal", 7, 11))
sketch4.addConstraint(Sketcher.Constraint("Equal", 9, 13))
sketch4.addConstraint(Sketcher.Constraint("Equal", 11, 15))
sketch4.addConstraint(Sketcher.Constraint("Equal", 13, 17))
sketch4.addConstraint(Sketcher.Constraint("Equal", 15, 19))
sketch4.addConstraint(Sketcher.Constraint("Equal", 21, 27))
sketch4.addConstraint(Sketcher.Constraint("Equal", 19, 29))
sketch4.addConstraint(Sketcher.Constraint("Equal", 17, 31))
sketch4.addConstraint(Sketcher.Constraint("Equal", 29, 33))
sketch4.addConstraint(Sketcher.Constraint("Equal", 31, 35))
sketch4.addConstraint(Sketcher.Constraint("Equal", 33, 37))
sketch4.addConstraint(Sketcher.Constraint("Equal", 35, 39))
sketch4.addConstraint(Sketcher.Constraint("Equal", 37, 41))
sketch4.addConstraint(Sketcher.Constraint("Equal", 39, 43))
sketch4.addConstraint(Sketcher.Constraint("Equal", 41, 45))
sketch4.addConstraint(Sketcher.Constraint("Equal", 43, 47))
sketch4.addConstraint(Sketcher.Constraint("Equal", 26, 49))
sketch4.addConstraint(Sketcher.Constraint("Equal", 23, 52))
sketch4.addConstraint(Sketcher.Constraint("Equal", 45, 0))
sketch4.addConstraint(Sketcher.Constraint("Equal", 20, 28))
sketch4.addConstraint(Sketcher.Constraint("Angle", 20, Q("112 deg")))
sketch4.addConstraint(Sketcher.Constraint("DistanceX", 0, 2, 3, 2, 2.0))
sketch4.addConstraint(Sketcher.Constraint("DistanceY", 22, 2, 17, 2, 1.0))
sketch4.addConstraint(Sketcher.Constraint("DistanceX", 17, 2, 23, 2, 2.0))
sketch4.addConstraint(Sketcher.Constraint("DistanceX", 1, 1, 1, 2, 0.75))
sketch4.addConstraint(Sketcher.Constraint("DistanceY", 25, 1, 25, 2, 2.15))
sketch4.addConstraint(Sketcher.Constraint("DistanceX", 24, 2, -1, 1, 16.125))
sketch4.addConstraint(Sketcher.Constraint("DistanceX", -1, 1, 49, 2, 19.875))
sketch4.addConstraint(Sketcher.Constraint("DistanceY", -1, 1, 0, 2, 9.7125))
sketch4.addConstraint(Sketcher.Constraint("Distance", 20, 8.49884))
sketch4.addConstraint(Sketcher.Constraint("DistanceX", 21, 1, 21, 2, 2.319457))
sketch4.addConstraint(Sketcher.Constraint("DistanceX", 26, 1, 26, 2, 0.195797))
pocket2 = doc.addObject("PartDesign::Pocket", "Pocket001")
body.addObject(pocket2)
pocket2.Profile = sketch4
pocket2.Length = 10
pocket2.Reversed = True
doc.recompute()

fillet = doc.addObject("PartDesign::Fillet", "Fillet")
body.addObject(fillet)
fillet.Base = (pocket2, edges_at(pocket2, [(1.875, 16, -9.137), (1.875, 0, -9.137)]))
fillet.Radius = 7
doc.recompute()

fillet2 = doc.addObject("PartDesign::Fillet", "Fillet001")
body.addObject(fillet2)
fillet2.Base = (fillet, edges_at(fillet, [
    (19.875, 16, 3.337),
    (-16.125, 16, 3.337),
    (-16.125, 8, -9.137),
    (-16.125, 0, 8.363),
    (-16.125, 2.05, -7.087),
    (-16.125, 13.95, -7.087),
    (19.875, 8, -9.137),
    (19.875, 2.05, -7.087),
    (19.875, 13.95, -7.087),
    (19.875, 0, 8.363),
]))
fillet2.Radius = 2
doc.recompute()

fillet3 = doc.addObject("PartDesign::Fillet", "Fillet002")
body.addObject(fillet3)
fillet3.Base = (fillet2, edges_at(fillet2, [(1.875, 16, 8.812)]))
fillet3.Radius = 1
doc.recompute()

fillet4 = doc.addObject("PartDesign::Fillet", "Fillet003")
body.addObject(fillet4)
fillet4.Base = (fillet3, edges_at(fillet3, [
    (10.739, 0, 18.863),
    (19.289, 0.586, 18.863),
    (-6.989, 0, 18.863),
    (-15.539, 0.586, 18.863),
    (19.875, 9, 18.863),
    (-16.125, 9, 18.863),
    (-16.125, 16, 14.912),
    (19.875, 16, 14.912),
]))
fillet4.Radius = 1

# Sketch on YZ plane
sketch5 = doc.addObject("Sketcher::SketchObject", "Sketch004")
body.addObject(sketch5)
sketch5.AttachmentSupport = (doc.YZ_Plane, [""])
sketch5.MapMode = "FlatFace"
sketch5.AttachmentOffset = App.Placement(Vector(0, 0, -14.125), App.Rotation())
sketch5.addGeometry(Part.Circle(Vector(8, -0.6, 0), Vector(0, 0, 1), 5.7), False)
sketch5.addGeometry(Part.Circle(Vector(8, -0.6, 0), Vector(0, 0, 1), 4.7), False)
sketch5.addConstraint(Sketcher.Constraint("Coincident", 1, 3, 0, 3))
sketch5.addConstraint(Sketcher.Constraint("Diameter", 0, 11.4))
sketch5.addConstraint(Sketcher.Constraint("Diameter", 1, 9.4))
sketch5.addConstraint(Sketcher.Constraint("DistanceX", -1, 1, 0, 3, 8.0))
sketch5.addConstraint(Sketcher.Constraint("DistanceY", 0, 3, -1, 1, 0.6375))
pad3 = doc.addObject("PartDesign::Pad", "Pad002")
body.addObject(pad3)
pad3.Profile = sketch5
pad3.Length = 2
pad3.Reversed = True

doc.recompute()
